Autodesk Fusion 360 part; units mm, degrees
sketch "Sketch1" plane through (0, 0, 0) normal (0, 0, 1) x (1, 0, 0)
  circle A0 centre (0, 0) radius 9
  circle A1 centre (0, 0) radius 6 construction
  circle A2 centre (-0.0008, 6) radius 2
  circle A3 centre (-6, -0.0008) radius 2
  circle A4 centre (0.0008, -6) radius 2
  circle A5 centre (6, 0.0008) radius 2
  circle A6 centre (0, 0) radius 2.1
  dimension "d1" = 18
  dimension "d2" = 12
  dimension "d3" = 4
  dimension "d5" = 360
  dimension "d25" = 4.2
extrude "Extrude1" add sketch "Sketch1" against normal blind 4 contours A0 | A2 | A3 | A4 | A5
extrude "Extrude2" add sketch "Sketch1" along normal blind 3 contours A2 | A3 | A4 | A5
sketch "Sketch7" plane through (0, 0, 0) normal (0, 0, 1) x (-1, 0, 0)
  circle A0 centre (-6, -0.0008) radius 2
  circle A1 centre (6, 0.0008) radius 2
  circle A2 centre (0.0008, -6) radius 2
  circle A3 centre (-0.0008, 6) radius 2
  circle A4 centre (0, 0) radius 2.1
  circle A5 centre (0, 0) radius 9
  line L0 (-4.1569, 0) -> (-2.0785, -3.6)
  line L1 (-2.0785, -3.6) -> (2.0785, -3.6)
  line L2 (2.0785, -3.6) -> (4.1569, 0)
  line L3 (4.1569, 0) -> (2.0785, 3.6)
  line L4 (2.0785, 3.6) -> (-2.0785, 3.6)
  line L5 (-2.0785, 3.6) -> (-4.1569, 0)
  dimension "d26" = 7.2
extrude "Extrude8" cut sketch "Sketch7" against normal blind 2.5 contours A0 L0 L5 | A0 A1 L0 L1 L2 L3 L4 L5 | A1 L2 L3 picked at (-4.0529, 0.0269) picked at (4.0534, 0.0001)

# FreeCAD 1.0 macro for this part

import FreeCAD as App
import Part
import Sketcher
from FreeCAD import Vector
Q = App.Units.Quantity

doc = App.newDocument("Part")
body = doc.addObject("PartDesign::Body", "Body")

sketch1 = body.newObject("Sketcher::SketchObject", "Sketch")
sketch1.AttachmentSupport = (doc.getObject("XY_Plane"), [""])
sketch1.MapMode = "FlatFace"
sketch1.addGeometry([
    Part.Circle(Vector(0, 0, 0), Vector(0, 0, 1), 9),
    Part.Circle(Vector(0, 0, 0), Vector(0, 0, 1), 2.1),
], False)
sketch1.addConstraint([
    Sketcher.Constraint("Coincident", 0, 3, -1, 1),
    Sketcher.Constraint("Coincident", 1, 3, -1, 1),
    Sketcher.Constraint("Diameter", 0, 18.0),
    Sketcher.Constraint("Diameter", 1, 4.2),
])
pad1 = body.newObject("PartDesign::Pad", "Pad")
pad1.Profile = sketch1
pad1.Length = 4
pad1.Reversed = True

sketch2 = body.newObject("Sketcher::SketchObject", "Sketch001")
sketch2.AttachmentSupport = (doc.getObject("XY_Plane"), [""])
sketch2.MapMode = "FlatFace"
sketch2.addGeometry([
    Part.Circle(Vector(0, 6, 0), Vector(0, 0, 1), 2),
    Part.Circle(Vector(-6, 0, 0), Vector(0, 0, 1), 2),
    Part.Circle(Vector(0, -6, 0), Vector(0, 0, 1), 2),
    Part.Circle(Vector(6, 0, 0), Vector(0, 0, 1), 2),
], False)
sketch2.addConstraint([
    Sketcher.Constraint("Equal", 0, 1),
    Sketcher.Constraint("Equal", 1, 2),
    Sketcher.Constraint("Equal", 2, 3),
    Sketcher.Constraint("Symmetric", 0, 3, 2, 3, -1, 1),
    Sketcher.Constraint("Symmetric", 1, 3, 3, 3, -1, 1),
    Sketcher.Constraint("Diameter", 0, 4.0),
    Sketcher.Constraint("DistanceY", 2, 3, 0, 3, 12.0),
    Sketcher.Constraint("DistanceX", 1, 3, 3, 3, 12.0),
    Sketcher.Constraint("DistanceX", 0, 3, -1, 1, 0.0008),
    Sketcher.Constraint("DistanceY", 1, 3, -1, 1, 0.0008),
])
pad2 = body.newObject("PartDesign::Pad", "Pad001")
pad2.Profile = sketch2
pad2.Length = 3

sketch3 = body.newObject("Sketcher::SketchObject", "Sketch002")
sketch3.AttachmentSupport = (doc.getObject("XY_Plane"), [""])
sketch3.MapMode = "FlatFace"
sketch3.addGeometry([
    Part.LineSegment(Vector(4.2, 0, 0), Vector(2.1, 3.6, 0)),
    Part.LineSegment(Vector(2.1, 3.6, 0), Vector(-2.1, 3.6, 0)),
    Part.LineSegment(Vector(-2.1, 3.6, 0), Vector(-4.2, 0, 0)),
    Part.LineSegment(Vector(-4.2, 0, 0), Vector(-2.1, -3.6, 0)),
    Part.LineSegment(Vector(-2.1, -3.6, 0), Vector(2.1, -3.6, 0)),
    Part.LineSegment(Vector(2.1, -3.6, 0), Vector(4.2, 0, 0)),
    Part.Circle(Vector(0, 0, 0), Vector(0, 0, 1), 2.1),
], False)
sketch3.addConstraint([
    Sketcher.Constraint("Coincident", 0, 2, 1, 1),
    Sketcher.Constraint("Coincident", 1, 2, 2, 1),
    Sketcher.Constraint("Coincident", 2, 2, 3, 1),
    Sketcher.Constraint("Coincident", 3, 2, 4, 1),
    Sketcher.Constraint("Coincident", 4, 2, 5, 1),
    Sketcher.Constraint("Coincident", 5, 2, 0, 1),
    Sketcher.Constraint("Horizontal", 1),
    Sketcher.Constraint("Horizontal", 4),
    Sketcher.Constraint("Coincident", 6, 3, -1, 1),
    Sketcher.Constraint("Symmetric", 0, 2, 3, 2, -1, 1),
    Sketcher.Constraint("Symmetric", 2, 2, 5, 2, -1, 1),
    Sketcher.Constraint("PointOnObject", 2, 2, -1),
    Sketcher.Constraint("Parallel", 2, 5),
    Sketcher.Constraint("Vertical", 1, 2, 3, 2),
    Sketcher.Constraint("Diameter", 6, 4.2),
    Sketcher.Constraint("DistanceY", 3, 2, 1, 2, 7.2),
    Sketcher.Constraint("Angle", 0, Q("119.9993 deg")),
    Sketcher.Constraint("DistanceX", 1, 2, 1, 1, 4.157),
])
pocket1 = body.newObject("PartDesign::Pocket", "Pocket")
pocket1.Profile = sketch3
pocket1.Length = 2.5

doc.recompute()
